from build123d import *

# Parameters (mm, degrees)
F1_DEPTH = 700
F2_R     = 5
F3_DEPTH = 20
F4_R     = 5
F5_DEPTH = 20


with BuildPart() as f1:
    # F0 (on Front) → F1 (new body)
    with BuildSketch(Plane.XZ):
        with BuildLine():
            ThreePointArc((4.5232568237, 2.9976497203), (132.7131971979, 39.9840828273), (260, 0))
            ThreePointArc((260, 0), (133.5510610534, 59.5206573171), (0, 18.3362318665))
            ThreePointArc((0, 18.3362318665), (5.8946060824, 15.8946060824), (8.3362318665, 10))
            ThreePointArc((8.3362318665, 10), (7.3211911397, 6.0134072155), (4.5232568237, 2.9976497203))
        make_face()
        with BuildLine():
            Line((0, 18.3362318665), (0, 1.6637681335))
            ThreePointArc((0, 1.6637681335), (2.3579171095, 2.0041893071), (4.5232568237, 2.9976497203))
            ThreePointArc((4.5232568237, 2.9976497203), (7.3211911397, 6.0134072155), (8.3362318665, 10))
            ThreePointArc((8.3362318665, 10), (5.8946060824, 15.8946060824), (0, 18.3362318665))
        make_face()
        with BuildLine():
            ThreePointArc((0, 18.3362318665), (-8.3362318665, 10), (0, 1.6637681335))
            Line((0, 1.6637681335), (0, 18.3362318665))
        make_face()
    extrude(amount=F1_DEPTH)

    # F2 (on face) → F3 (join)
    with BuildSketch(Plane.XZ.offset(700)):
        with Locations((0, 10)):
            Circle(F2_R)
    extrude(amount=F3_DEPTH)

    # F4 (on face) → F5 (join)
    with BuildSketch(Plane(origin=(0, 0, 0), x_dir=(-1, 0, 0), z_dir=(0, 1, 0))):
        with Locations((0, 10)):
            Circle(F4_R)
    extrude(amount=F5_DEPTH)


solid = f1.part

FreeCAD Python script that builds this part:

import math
import FreeCAD as App
import Part
import Sketcher
from FreeCAD import Vector

doc = App.newDocument("Part")
body = doc.addObject("PartDesign::Body", "Body")

# Sketch on XZ plane
sketch1 = doc.addObject("Sketcher::SketchObject", "Sketch")
body.addObject(sketch1)
sketch1.AttachmentSupport = (doc.XZ_Plane, [""])
sketch1.MapMode = "FlatFace"
sketch1.addGeometry(Part.ArcOfCircle(Part.Circle(Vector(130, -191.2, 0), Vector(0, 0, 1), 231.2), math.radians(56), math.radians(123)), False)
sketch1.addGeometry(Part.ArcOfCircle(Part.Circle(Vector(119.9, -133.5, 0), Vector(0, 0, 1), 193.5), math.radians(44), math.radians(128)), False)
sketch1.addGeometry(Part.ArcOfCircle(Part.Circle(Vector(0, 10, 0), Vector(0, 0, 1), 8.3), math.radians(90), math.radians(270)), False)
sketch1.addGeometry(Part.ArcOfCircle(Part.Circle(Vector(0, 10, 0), Vector(0, 0, 1), 8.3), math.radians(-90), math.radians(-57)), False)
sketch1.addConstraint(Sketcher.Constraint("Coincident", 0, 1, 1, 1))
sketch1.addConstraint(Sketcher.Constraint("Coincident", 1, 2, 2, 1))
sketch1.addConstraint(Sketcher.Constraint("Tangent", 2, 2, 3, 1))
sketch1.addConstraint(Sketcher.Constraint("Tangent", 3, 2, 0, 2))
sketch1.addConstraint(Sketcher.Constraint("Equal", 2, 3))
sketch1.addConstraint(Sketcher.Constraint("PointOnObject", 2, 3, -2))
sketch1.addConstraint(Sketcher.Constraint("PointOnObject", 0, 1, -1))
sketch1.addConstraint(Sketcher.Constraint("PointOnObject", 1, 2, -2))
sketch1.addConstraint(Sketcher.Constraint("PointOnObject", 2, 2, -2))
sketch1.addConstraint(Sketcher.Constraint("Radius", 0, 231.25))
sketch1.addConstraint(Sketcher.Constraint("DistanceX", -1, 1, 0, 3, 130.0))
sketch1.addConstraint(Sketcher.Constraint("DistanceY", -1, 1, 2, 3, 10.0))
sketch1.addConstraint(Sketcher.Constraint("DistanceX", -1, 1, 0, 1, 260.0))
sketch1.addConstraint(Sketcher.Constraint("Radius", 1, 193.472366))
pad1 = doc.addObject("PartDesign::Pad", "Pad")
body.addObject(pad1)
pad1.Profile = sketch1
pad1.Length = 700

# Sketch on XZ plane
sketch2 = doc.addObject("Sketcher::SketchObject", "Sketch001")
body.addObject(sketch2)
sketch2.AttachmentSupport = (doc.XZ_Plane, [""])
sketch2.MapMode = "FlatFace"
sketch2.AttachmentOffset = App.Placement(Vector(0, 0, 700), App.Rotation())
sketch2.addGeometry(Part.Circle(Vector(0, 10, 0), Vector(0, 0, 1), 5), False)
sketch2.addConstraint(Sketcher.Constraint("PointOnObject", 0, 3, -2))
sketch2.addConstraint(Sketcher.Constraint("Diameter", 0, 10.0))
sketch2.addConstraint(Sketcher.Constraint("DistanceY", -1, 1, 0, 3, 10.0))
pad2 = doc.addObject("PartDesign::Pad", "Pad001")
body.addObject(pad2)
pad2.Profile = sketch2
pad2.Length = 20

# Sketch on XZ plane
sketch3 = doc.addObject("Sketcher::SketchObject", "Sketch002")
body.addObject(sketch3)
sketch3.AttachmentSupport = (doc.XZ_Plane, [""])
sketch3.MapMode = "FlatFace"
sketch3.addGeometry(Part.Circle(Vector(0, 10, 0), Vector(0, 0, 1), 5), False)
sketch3.addConstraint(Sketcher.Constraint("PointOnObject", 0, 3, -2))
sketch3.addConstraint(Sketcher.Constraint("Diameter", 0, 10.0))
sketch3.addConstraint(Sketcher.Constraint("DistanceY", -1, 1, 0, 3, 10.0))
pad3 = doc.addObject("PartDesign::Pad", "Pad002")
body.addObject(pad3)
pad3.Profile = sketch3
pad3.Length = 20
pad3.Reversed = True

doc.recompute()
